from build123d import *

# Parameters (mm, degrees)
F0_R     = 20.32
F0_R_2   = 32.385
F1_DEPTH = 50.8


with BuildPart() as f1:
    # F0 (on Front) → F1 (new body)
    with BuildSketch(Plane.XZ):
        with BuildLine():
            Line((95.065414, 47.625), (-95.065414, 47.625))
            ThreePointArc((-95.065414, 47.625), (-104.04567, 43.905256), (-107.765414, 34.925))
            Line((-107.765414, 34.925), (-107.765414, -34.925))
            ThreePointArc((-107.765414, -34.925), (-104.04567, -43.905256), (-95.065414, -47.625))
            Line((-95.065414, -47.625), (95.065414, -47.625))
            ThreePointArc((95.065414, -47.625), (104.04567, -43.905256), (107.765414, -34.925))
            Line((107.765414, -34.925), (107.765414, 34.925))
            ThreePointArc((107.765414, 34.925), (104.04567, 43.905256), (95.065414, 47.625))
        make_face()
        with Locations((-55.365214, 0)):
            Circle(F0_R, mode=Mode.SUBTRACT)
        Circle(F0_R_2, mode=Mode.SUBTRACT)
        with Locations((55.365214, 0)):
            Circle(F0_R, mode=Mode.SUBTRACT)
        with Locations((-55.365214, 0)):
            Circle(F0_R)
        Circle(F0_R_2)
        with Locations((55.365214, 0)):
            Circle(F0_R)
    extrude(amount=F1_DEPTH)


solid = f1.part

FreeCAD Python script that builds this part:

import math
import FreeCAD as App
import Part
import Sketcher
from FreeCAD import Vector
Q = App.Units.Quantity

doc = App.newDocument("Part")
body = doc.addObject("PartDesign::Body", "Body")

# Sketch on XZ plane
sketch1 = body.newObject("Sketcher::SketchObject", "Sketch")
sketch1.AttachmentSupport = (doc.getObject("XZ_Plane"), [""])
sketch1.MapMode = "FlatFace"
sketch1.addGeometry(Part.LineSegment(Vector(95, 48, 0), Vector(-95, 48, 0)), False)
sketch1.addGeometry(Part.ArcOfCircle(Part.Circle(Vector(-95, 35, 0), Vector(0, 0, 1), 13), math.radians(90), math.radians(180)), False)
sketch1.addGeometry(Part.LineSegment(Vector(-108, 35, 0), Vector(-108, -35, 0)), False)
sketch1.addGeometry(Part.ArcOfCircle(Part.Circle(Vector(-95, -35, 0), Vector(0, 0, 1), 13), math.radians(-180), math.radians(-90)), False)
sketch1.addGeometry(Part.LineSegment(Vector(-95, -48, 0), Vector(95, -48, 0)), False)
sketch1.addGeometry(Part.ArcOfCircle(Part.Circle(Vector(95, -35, 0), Vector(0, 0, 1), 13), math.radians(-90), math.radians(0)), False)
sketch1.addGeometry(Part.LineSegment(Vector(108, -35, 0), Vector(108, 35, 0)), False)
sketch1.addGeometry(Part.ArcOfCircle(Part.Circle(Vector(95, 35, 0), Vector(0, 0, 1), 13), math.radians(0), math.radians(90)), False)
sketch1.addConstraint(Sketcher.Constraint("Tangent", 0, 2, 1, 1))
sketch1.addConstraint(Sketcher.Constraint("Tangent", 1, 2, 2, 1))
sketch1.addConstraint(Sketcher.Constraint("Tangent", 2, 2, 3, 1))
sketch1.addConstraint(Sketcher.Constraint("Tangent", 3, 2, 4, 1))
sketch1.addConstraint(Sketcher.Constraint("Tangent", 4, 2, 5, 1))
sketch1.addConstraint(Sketcher.Constraint("Tangent", 5, 2, 6, 1))
sketch1.addConstraint(Sketcher.Constraint("Tangent", 6, 2, 7, 1))
sketch1.addConstraint(Sketcher.Constraint("Tangent", 7, 2, 0, 1))
sketch1.addConstraint(Sketcher.Constraint("Horizontal", 0))
sketch1.addConstraint(Sketcher.Constraint("Vertical", 2))
sketch1.addConstraint(Sketcher.Constraint("Horizontal", 4))
sketch1.addConstraint(Sketcher.Constraint("Vertical", 6))
sketch1.addConstraint(Sketcher.Constraint("Equal", 1, 3))
sketch1.addConstraint(Sketcher.Constraint("Equal", 3, 5))
sketch1.addConstraint(Sketcher.Constraint("Equal", 5, 7))
sketch1.addConstraint(Sketcher.Constraint("Symmetric", 1, 3, 5, 3, -1, 1))
sketch1.addConstraint(Sketcher.Constraint("Radius", 1, Q("0.5 in")))
sketch1.addConstraint(Sketcher.Constraint("DistanceY", 2, 2, 2, 1, Q("2.75 in")))
sketch1.addConstraint(Sketcher.Constraint("DistanceX", 0, 2, 0, 1, 190.130828))
pad1 = body.newObject("PartDesign::Pad", "Pad")
pad1.Profile = sketch1
pad1.Length = Q("2 in")

doc.recompute()
